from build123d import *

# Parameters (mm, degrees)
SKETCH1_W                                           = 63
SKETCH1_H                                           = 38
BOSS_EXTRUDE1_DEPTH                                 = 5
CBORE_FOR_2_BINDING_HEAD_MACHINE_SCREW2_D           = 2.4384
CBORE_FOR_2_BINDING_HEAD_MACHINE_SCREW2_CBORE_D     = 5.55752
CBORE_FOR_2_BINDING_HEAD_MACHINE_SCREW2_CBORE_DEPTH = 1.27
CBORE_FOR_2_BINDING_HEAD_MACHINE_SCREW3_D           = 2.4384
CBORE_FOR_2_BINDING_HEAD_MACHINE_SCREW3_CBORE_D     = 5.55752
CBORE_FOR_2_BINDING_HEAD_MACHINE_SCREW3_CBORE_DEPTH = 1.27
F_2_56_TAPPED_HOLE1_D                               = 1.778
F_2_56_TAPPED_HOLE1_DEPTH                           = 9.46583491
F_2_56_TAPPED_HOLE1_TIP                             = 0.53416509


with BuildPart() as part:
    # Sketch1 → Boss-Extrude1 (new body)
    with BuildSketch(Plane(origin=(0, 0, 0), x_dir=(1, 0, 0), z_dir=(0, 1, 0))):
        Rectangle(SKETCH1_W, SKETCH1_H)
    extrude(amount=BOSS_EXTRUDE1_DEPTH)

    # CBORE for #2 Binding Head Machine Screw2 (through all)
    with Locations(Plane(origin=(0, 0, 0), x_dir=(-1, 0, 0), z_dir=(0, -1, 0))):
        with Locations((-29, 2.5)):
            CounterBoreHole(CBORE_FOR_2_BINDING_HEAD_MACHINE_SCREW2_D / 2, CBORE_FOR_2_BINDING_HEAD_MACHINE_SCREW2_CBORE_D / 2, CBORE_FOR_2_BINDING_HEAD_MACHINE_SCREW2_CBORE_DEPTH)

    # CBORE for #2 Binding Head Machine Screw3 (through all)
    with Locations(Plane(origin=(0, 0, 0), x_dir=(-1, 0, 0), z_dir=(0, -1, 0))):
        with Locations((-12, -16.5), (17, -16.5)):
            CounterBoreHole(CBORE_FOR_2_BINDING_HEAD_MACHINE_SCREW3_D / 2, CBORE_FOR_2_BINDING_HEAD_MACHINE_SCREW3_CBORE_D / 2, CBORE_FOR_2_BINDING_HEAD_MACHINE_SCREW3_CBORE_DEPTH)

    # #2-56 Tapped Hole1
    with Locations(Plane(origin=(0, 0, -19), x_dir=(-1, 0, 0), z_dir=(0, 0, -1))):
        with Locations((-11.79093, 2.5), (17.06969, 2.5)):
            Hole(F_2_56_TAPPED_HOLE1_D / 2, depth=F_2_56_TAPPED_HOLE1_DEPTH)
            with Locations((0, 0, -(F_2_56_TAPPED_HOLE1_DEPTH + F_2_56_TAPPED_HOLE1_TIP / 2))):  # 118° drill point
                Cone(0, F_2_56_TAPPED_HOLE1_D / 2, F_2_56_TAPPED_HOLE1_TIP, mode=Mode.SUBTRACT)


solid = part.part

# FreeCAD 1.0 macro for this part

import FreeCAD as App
import Part
import Sketcher
from FreeCAD import Vector

doc = App.newDocument("Part")
body = doc.addObject("PartDesign::Body", "Body")

sketch1 = doc.addObject("Sketcher::SketchObject", "Sketch")
body.addObject(sketch1)
sketch1.AttachmentSupport = (doc.XZ_Plane, [""])
sketch1.MapMode = "FlatFace"
sketch1.addGeometry([
    Part.LineSegment(Vector(-32, -19, 0), Vector(-32, 19, 0)),
    Part.LineSegment(Vector(-32, 19, 0), Vector(32, 19, 0)),
    Part.LineSegment(Vector(32, 19, 0), Vector(32, -19, 0)),
    Part.LineSegment(Vector(32, -19, 0), Vector(-32, -19, 0)),
], False)
sketch1.addConstraint([
    Sketcher.Constraint("Coincident", 0, 2, 1, 1),
    Sketcher.Constraint("Coincident", 1, 2, 2, 1),
    Sketcher.Constraint("Coincident", 2, 2, 3, 1),
    Sketcher.Constraint("Coincident", 3, 2, 0, 1),
    Sketcher.Constraint("Vertical", 0),
    Sketcher.Constraint("Horizontal", 1),
    Sketcher.Constraint("Vertical", 2),
    Sketcher.Constraint("Horizontal", 3),
    Sketcher.Constraint("Symmetric", 0, 2, 2, 2, -1, 1),
    Sketcher.Constraint("DistanceX", 1, 1, 1, 2, 63.0),
    Sketcher.Constraint("DistanceY", 0, 1, 0, 2, 38.0),
])
pad1 = doc.addObject("PartDesign::Pad", "Pad")
body.addObject(pad1)
pad1.Profile = sketch1
pad1.Length = 5
pad1.Reversed = True

sketch2 = doc.addObject("Sketcher::SketchObject", "Sketch001")
body.addObject(sketch2)
sketch2.AttachmentSupport = (doc.XZ_Plane, [""])
sketch2.MapMode = "FlatFace"
sketch2.addGeometry(Part.Circle(Vector(29, -2.5, 0), Vector(0, 0, 1), 1.2), False)
sketch2.addConstraint([
    Sketcher.Constraint("DistanceX", -1, 1, 0, 3, 29.0),
    Sketcher.Constraint("Diameter", 0, 2.4384),
    Sketcher.Constraint("DistanceY", 0, 3, -1, 1, 2.5),
])
doc.recompute()
hole = doc.addObject("PartDesign::Hole", "Hole")
body.addObject(hole)
hole.Profile = sketch2
hole.ThreadType = "None"
hole.Diameter = 2.4384
hole.DepthType = "ThroughAll"
hole.HoleCutType = "Counterbore"
hole.HoleCutDiameter = 5.55752
hole.HoleCutDepth = 1.27

sketch3 = doc.addObject("Sketcher::SketchObject", "Sketch002")
body.addObject(sketch3)
sketch3.AttachmentSupport = (doc.XZ_Plane, [""])
sketch3.MapMode = "FlatFace"
sketch3.addGeometry([
    Part.Circle(Vector(12, 16.5, 0), Vector(0, 0, 1), 1.2),
    Part.Circle(Vector(-17, 16.5, 0), Vector(0, 0, 1), 1.2),
], False)
sketch3.addConstraint([
    Sketcher.Constraint("Equal", 0, 1),
    Sketcher.Constraint("Horizontal", 0, 3, 1, 3),
    Sketcher.Constraint("DistanceX", -1, 1, 0, 3, 12.0),
    Sketcher.Constraint("DistanceX", 1, 3, -1, 1, 17.0),
    Sketcher.Constraint("Diameter", 0, 2.4384),
    Sketcher.Constraint("DistanceY", -1, 1, 0, 3, 16.5),
])
doc.recompute()
hole2 = doc.addObject("PartDesign::Hole", "Hole001")
body.addObject(hole2)
hole2.Profile = sketch3
hole2.ThreadType = "None"
hole2.Diameter = 2.4384
hole2.DepthType = "ThroughAll"
hole2.HoleCutType = "Counterbore"
hole2.HoleCutDiameter = 5.55752
hole2.HoleCutDepth = 1.27

sketch4 = doc.addObject("Sketcher::SketchObject", "Sketch003")
body.addObject(sketch4)
sketch4.AttachmentSupport = (doc.XY_Plane, [""])
sketch4.MapMode = "FlatFace"
sketch4.AttachmentOffset = App.Placement(Vector(0, 0, -19), App.Rotation())
sketch4.addGeometry([
    Part.Circle(Vector(11.8, 2.5, 0), Vector(0, 0, 1), 0.9),
    Part.Circle(Vector(-17.1, 2.5, 0), Vector(0, 0, 1), 0.9),
], False)
sketch4.addConstraint([
    Sketcher.Constraint("Equal", 0, 1),
    Sketcher.Constraint("Horizontal", 0, 3, 1, 3),
    Sketcher.Constraint("Diameter", 0, 1.778),
    Sketcher.Constraint("DistanceY", -1, 1, 0, 3, 2.5),
    Sketcher.Constraint("DistanceX", -1, 1, 0, 3, 11.79093),
    Sketcher.Constraint("DistanceX", 1, 3, -1, 1, 17.06969),
])
doc.recompute()
hole3 = doc.addObject("PartDesign::Hole", "Hole002")
body.addObject(hole3)
hole3.Profile = sketch4
hole3.ThreadType = "None"
hole3.Diameter = 1.778
hole3.DepthType = "Dimension"
hole3.Depth = 9.465835
hole3.DrillPoint = "Angled"
hole3.DrillPointAngle = 118
hole3.Reversed = True

doc.recompute()
